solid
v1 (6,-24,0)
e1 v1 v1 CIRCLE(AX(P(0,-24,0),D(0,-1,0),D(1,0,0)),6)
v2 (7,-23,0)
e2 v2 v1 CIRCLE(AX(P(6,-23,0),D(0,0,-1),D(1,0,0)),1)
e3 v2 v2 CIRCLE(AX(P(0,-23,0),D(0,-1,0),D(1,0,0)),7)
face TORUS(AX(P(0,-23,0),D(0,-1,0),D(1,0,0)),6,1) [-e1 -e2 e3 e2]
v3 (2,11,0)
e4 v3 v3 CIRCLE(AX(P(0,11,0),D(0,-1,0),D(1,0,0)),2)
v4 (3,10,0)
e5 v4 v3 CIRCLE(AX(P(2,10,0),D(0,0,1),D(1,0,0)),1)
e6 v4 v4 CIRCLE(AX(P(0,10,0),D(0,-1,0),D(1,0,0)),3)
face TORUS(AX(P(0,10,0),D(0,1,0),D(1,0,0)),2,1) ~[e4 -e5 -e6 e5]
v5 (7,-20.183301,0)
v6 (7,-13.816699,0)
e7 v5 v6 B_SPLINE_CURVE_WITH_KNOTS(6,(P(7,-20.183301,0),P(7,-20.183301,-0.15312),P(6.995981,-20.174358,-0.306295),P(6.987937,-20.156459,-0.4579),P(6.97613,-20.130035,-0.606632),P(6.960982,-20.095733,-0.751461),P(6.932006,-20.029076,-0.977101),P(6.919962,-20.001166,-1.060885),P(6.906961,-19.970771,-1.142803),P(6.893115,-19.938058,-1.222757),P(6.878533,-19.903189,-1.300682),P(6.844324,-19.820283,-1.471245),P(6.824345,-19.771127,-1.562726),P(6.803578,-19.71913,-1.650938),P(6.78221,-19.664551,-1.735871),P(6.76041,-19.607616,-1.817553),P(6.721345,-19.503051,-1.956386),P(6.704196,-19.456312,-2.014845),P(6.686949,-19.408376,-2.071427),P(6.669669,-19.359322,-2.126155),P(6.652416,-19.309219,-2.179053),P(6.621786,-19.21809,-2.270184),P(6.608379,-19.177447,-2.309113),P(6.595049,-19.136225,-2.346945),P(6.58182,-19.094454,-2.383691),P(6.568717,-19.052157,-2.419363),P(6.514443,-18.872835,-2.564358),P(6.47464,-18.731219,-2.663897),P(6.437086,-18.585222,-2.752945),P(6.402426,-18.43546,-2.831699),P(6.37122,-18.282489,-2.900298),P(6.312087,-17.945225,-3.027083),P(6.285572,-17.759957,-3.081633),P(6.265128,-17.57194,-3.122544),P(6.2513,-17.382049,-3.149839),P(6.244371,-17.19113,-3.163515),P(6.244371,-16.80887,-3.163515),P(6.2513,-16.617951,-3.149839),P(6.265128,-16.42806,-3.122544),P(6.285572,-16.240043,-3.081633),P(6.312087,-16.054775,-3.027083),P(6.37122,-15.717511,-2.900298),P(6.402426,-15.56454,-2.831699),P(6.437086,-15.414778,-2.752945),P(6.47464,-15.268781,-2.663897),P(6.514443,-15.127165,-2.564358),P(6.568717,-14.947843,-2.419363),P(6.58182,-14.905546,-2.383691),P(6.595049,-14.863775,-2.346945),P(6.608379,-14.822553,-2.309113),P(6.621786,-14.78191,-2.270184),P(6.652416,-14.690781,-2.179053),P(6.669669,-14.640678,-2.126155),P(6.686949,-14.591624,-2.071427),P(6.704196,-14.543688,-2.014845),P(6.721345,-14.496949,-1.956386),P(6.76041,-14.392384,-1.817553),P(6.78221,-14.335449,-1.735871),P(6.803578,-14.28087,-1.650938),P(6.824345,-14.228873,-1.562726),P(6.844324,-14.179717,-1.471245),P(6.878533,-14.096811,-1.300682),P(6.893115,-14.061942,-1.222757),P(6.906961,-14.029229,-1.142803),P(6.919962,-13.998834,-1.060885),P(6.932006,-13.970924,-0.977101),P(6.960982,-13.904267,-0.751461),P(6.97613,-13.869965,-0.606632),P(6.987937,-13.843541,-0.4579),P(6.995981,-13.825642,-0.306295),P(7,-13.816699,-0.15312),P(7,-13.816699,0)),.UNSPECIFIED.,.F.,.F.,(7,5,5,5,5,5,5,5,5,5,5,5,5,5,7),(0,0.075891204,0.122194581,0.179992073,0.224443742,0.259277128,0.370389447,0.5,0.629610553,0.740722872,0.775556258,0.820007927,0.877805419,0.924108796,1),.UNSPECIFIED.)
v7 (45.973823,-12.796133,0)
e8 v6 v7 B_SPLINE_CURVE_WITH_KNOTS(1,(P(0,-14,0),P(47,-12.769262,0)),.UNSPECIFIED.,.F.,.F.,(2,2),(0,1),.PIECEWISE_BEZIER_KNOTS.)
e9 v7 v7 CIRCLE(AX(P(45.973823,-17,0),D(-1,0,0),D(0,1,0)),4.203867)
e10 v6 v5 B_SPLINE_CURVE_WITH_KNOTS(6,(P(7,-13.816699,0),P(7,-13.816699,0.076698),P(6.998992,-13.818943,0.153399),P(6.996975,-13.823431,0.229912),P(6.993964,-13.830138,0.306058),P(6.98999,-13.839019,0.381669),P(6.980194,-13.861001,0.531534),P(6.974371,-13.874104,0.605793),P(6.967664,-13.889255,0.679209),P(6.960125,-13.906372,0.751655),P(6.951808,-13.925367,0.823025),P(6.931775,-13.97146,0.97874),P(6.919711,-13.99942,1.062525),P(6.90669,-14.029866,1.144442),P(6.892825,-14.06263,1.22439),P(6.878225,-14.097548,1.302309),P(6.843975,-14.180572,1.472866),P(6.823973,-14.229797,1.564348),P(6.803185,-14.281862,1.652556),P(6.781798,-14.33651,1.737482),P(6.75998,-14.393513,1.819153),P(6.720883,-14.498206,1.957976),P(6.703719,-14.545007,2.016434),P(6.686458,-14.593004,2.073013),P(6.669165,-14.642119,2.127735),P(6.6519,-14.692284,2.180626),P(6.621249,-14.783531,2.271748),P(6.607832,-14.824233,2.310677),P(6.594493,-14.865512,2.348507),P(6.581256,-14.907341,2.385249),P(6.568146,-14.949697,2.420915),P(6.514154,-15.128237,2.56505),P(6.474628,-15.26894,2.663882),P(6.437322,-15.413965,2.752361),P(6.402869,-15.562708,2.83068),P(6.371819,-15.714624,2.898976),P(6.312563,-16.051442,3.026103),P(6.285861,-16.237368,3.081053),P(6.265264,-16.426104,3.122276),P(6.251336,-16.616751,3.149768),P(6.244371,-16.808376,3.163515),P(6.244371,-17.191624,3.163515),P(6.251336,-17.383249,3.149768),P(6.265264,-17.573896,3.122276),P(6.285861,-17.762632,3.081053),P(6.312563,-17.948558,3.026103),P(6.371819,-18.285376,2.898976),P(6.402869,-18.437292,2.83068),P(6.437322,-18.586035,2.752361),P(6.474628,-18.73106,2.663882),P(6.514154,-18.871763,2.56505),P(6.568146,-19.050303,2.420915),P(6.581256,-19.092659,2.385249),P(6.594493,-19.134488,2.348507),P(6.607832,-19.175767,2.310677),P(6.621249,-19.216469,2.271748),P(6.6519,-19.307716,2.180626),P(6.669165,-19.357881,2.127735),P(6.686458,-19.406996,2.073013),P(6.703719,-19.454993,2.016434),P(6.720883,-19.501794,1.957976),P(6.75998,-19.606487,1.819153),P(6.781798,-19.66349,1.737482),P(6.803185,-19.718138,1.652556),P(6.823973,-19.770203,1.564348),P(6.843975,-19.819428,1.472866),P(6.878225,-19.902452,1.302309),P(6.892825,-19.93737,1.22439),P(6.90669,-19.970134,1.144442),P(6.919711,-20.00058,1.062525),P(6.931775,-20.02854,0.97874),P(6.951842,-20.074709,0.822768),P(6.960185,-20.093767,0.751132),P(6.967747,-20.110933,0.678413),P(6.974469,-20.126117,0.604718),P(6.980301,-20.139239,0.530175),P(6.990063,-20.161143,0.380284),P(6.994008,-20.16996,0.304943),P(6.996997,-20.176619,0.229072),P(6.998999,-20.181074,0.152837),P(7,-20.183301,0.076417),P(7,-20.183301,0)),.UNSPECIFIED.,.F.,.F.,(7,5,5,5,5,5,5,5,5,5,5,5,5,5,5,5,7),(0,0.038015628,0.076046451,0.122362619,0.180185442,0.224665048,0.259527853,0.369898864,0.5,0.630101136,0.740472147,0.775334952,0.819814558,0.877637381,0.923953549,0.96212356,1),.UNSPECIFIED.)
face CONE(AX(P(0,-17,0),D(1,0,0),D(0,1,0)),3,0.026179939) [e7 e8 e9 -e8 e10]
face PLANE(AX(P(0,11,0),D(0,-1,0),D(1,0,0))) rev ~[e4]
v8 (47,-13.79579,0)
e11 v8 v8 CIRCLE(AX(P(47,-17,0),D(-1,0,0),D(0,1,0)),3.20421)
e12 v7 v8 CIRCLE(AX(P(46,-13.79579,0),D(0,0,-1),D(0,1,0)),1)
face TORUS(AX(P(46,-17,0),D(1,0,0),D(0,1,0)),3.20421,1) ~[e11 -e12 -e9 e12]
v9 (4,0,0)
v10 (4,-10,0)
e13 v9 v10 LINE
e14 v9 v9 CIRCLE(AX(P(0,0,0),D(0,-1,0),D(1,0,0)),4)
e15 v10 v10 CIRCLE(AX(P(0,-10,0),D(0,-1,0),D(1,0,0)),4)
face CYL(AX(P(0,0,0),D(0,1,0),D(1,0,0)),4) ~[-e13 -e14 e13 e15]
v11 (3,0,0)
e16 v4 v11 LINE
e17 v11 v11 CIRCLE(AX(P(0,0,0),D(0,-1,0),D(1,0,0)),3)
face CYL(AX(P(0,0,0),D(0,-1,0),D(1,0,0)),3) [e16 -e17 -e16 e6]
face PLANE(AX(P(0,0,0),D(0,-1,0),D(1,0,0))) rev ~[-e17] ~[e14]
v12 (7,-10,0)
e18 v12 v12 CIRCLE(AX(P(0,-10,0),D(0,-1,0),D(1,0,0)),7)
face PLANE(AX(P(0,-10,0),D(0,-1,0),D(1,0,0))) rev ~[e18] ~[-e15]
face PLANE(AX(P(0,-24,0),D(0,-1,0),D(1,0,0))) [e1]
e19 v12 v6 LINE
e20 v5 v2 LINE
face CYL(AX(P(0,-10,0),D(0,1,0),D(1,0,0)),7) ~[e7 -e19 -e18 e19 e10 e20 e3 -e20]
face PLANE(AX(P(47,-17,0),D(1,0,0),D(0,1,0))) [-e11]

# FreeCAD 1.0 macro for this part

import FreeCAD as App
import Part
import Sketcher

V = App.Vector
Q = App.Units.Quantity


def edges_at(feature, points):
    """Names of the edges that pass closest to the given points."""
    edges = feature.Shape.Edges
    near = lambda p: min(range(len(edges)), key=lambda i: edges[i].distToShape(Part.Vertex(*p))[0])
    return sorted({f"Edge{near(p) + 1}" for p in points})

doc = App.newDocument("Part")
body = doc.addObject("PartDesign::Body", "Body")

# Sketch on XZ plane
sketch1 = doc.addObject("Sketcher::SketchObject", "Sketch")
body.addObject(sketch1)
sketch1.AttachmentSupport = (doc.XZ_Plane, [""])
sketch1.MapMode = "FlatFace"
sketch1.AttachmentOffset = App.Placement(V(0, 0, 10), App.Rotation())
sketch1.addGeometry([
    Part.Circle(V(0, 0, 0), V(0, 0, 1), 7),
    Part.Circle(V(0, 0, 0), V(0, 0, 1), 4),
], False)
sketch1.addConstraint([
    Sketcher.Constraint("Coincident", 0, 3, -1, 1),
    Sketcher.Constraint("Coincident", 1, 3, -1, 1),
    Sketcher.Constraint("Diameter", 0, Q("14 mm")),
    Sketcher.Constraint("Diameter", 1, Q("8 mm")),
])
pad1 = doc.addObject("PartDesign::Pad", "Pad")
body.addObject(pad1)
pad1.Profile = sketch1
pad1.Length = 14
body2 = doc.addObject("PartDesign::Body", "Body001")

# Sketch on XZ plane
sketch2 = doc.addObject("Sketcher::SketchObject", "Sketch001")
body2.addObject(sketch2)
sketch2.AttachmentSupport = (doc.getObject("XZ_Plane001"), [""])
sketch2.MapMode = "FlatFace"
sketch2.addGeometry(Part.Circle(V(0, 0, 0), V(0, 0, 1), 3), False)
sketch2.addConstraint([
    Sketcher.Constraint("Coincident", 0, 3, -1, 1),
    Sketcher.Constraint("Diameter", 0, Q("6 mm")),
])
pad2 = doc.addObject("PartDesign::Pad", "Pad001")
body2.addObject(pad2)
pad2.Profile = sketch2
pad2.Type = "TwoLengths"
pad2.Length = 24
pad2.Length2 = 11
body3 = doc.addObject("PartDesign::Body", "Body002")

# Sketch on XZ plane
sketch3 = doc.addObject("Sketcher::SketchObject", "Sketch002")
body3.addObject(sketch3)
sketch3.AttachmentSupport = (doc.getObject("XZ_Plane002"), [""])
sketch3.MapMode = "FlatFace"
sketch3.addGeometry([
    Part.Circle(V(0, 0, 0), V(0, 0, 1), 4),
    Part.Circle(V(0, 0, 0), V(0, 0, 1), 3),
], False)
sketch3.addConstraint([
    Sketcher.Constraint("Coincident", 0, 3, -1, 1),
    Sketcher.Constraint("Coincident", 1, 3, -1, 1),
    Sketcher.Constraint("Diameter", 0, Q("8 mm")),
    Sketcher.Constraint("Diameter", 1, Q("6 mm")),
])
pad3 = doc.addObject("PartDesign::Pad", "Pad002")
body3.addObject(pad3)
pad3.Profile = sketch3
pad3.Length = 24
body.AllowCompound = True
doc.recompute()

boolean = doc.addObject("PartDesign::Boolean", "Boolean")
body.addObject(boolean)
boolean.Type = "Fuse"
boolean.addObjects([body2])
doc.recompute()

boolean2 = doc.addObject("PartDesign::Boolean", "Boolean001")
body.addObject(boolean2)
boolean2.Type = "Fuse"
boolean2.addObjects([body3])

# Sketch on YZ plane
sketch4 = doc.addObject("Sketcher::SketchObject", "Sketch003")
body.addObject(sketch4)
sketch4.AttachmentSupport = (doc.YZ_Plane, [""])
sketch4.MapMode = "FlatFace"
sketch4.addGeometry(Part.Circle(V(-17, 0, 0), V(0, 0, 1), 3), False)
sketch4.addConstraint([
    Sketcher.Constraint("PointOnObject", 0, 3, -1),
    Sketcher.Constraint("Diameter", 0, Q("6 mm")),
    Sketcher.Constraint("DistanceX", 0, 3, -1, 1, Q("17 mm")),
])
pad4 = doc.addObject("PartDesign::Pad", "Pad003")
body.addObject(pad4)
pad4.Profile = sketch4
pad4.Length = 47
pad4.TaperAngle = 1.5
doc.recompute()

fillet = doc.addObject("PartDesign::Fillet", "Fillet")
body.addObject(fillet)
fillet.Base = (pad4, edges_at(pad4, [(-7, -24, 0), (47, -21.231, 0), (-3, 11, 0)]))
fillet.Radius = 1

doc.recompute()
